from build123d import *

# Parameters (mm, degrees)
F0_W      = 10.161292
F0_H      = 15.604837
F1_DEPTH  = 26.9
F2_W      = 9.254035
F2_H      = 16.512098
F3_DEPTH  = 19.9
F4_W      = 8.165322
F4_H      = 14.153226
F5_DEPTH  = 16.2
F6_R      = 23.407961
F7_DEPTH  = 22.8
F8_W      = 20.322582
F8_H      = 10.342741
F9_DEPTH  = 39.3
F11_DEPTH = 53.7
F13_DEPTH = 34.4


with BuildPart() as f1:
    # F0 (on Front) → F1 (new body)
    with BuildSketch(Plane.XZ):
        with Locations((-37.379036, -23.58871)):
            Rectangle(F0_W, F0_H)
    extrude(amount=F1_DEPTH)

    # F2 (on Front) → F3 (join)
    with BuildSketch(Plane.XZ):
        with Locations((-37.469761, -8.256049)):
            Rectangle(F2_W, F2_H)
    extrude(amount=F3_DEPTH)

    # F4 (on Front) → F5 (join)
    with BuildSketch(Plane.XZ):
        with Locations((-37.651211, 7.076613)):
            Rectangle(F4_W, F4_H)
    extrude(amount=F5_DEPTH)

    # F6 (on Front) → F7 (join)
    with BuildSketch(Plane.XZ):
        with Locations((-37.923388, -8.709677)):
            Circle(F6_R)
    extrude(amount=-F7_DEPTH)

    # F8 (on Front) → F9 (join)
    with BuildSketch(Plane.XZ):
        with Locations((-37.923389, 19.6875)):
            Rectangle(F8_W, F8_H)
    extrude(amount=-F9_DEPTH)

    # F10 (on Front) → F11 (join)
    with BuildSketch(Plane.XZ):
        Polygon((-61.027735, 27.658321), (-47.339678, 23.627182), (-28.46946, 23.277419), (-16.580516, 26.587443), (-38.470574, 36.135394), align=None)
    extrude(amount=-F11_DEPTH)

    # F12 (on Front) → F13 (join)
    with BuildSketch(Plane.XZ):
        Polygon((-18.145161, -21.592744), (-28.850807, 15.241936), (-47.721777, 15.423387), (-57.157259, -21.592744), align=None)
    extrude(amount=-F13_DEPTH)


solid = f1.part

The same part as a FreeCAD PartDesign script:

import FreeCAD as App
import Part
import Sketcher
Q = App.Units.Quantity

doc = App.newDocument("Part")
body = doc.addObject("PartDesign::Body", "Body")

# Sketch on XZ plane
sketch1 = body.newObject("Sketcher::SketchObject", "Sketch")
sketch1.AttachmentSupport = (doc.getObject("XZ_Plane"), [""])
sketch1.MapMode = "FlatFace"
sketch1.addGeometry(Part.LineSegment(App.Vector(-42, -16, 0), App.Vector(-42, -31, 0)), False)
sketch1.addGeometry(Part.LineSegment(App.Vector(-42, -31, 0), App.Vector(-32, -31, 0)), False)
sketch1.addGeometry(Part.LineSegment(App.Vector(-32, -31, 0), App.Vector(-32, -16, 0)), False)
sketch1.addGeometry(Part.LineSegment(App.Vector(-32, -16, 0), App.Vector(-42, -16, 0)), False)
sketch1.addConstraint(Sketcher.Constraint("Coincident", 0, 2, 1, 1))
sketch1.addConstraint(Sketcher.Constraint("Coincident", 1, 2, 2, 1))
sketch1.addConstraint(Sketcher.Constraint("Coincident", 2, 2, 3, 1))
sketch1.addConstraint(Sketcher.Constraint("Coincident", 3, 2, 0, 1))
sketch1.addConstraint(Sketcher.Constraint("Vertical", 0))
sketch1.addConstraint(Sketcher.Constraint("Horizontal", 1))
sketch1.addConstraint(Sketcher.Constraint("Vertical", 2))
sketch1.addConstraint(Sketcher.Constraint("Horizontal", 3))
sketch1.addConstraint(Sketcher.Constraint("DistanceX", 1, 1, 1, 2, Q("10.161292 mm")))
sketch1.addConstraint(Sketcher.Constraint("DistanceY", 0, 2, 0, 1, Q("15.604837 mm")))
sketch1.addConstraint(Sketcher.Constraint("DistanceY", 0, 2, -1, 1, Q("31.391129 mm")))
sketch1.addConstraint(Sketcher.Constraint("DistanceX", 1, 2, -1, 1, Q("32.29839 mm")))
pad1 = body.newObject("PartDesign::Pad", "Pad")
pad1.Profile = sketch1
pad1.Length = 26.9

# Sketch on XZ plane
sketch2 = body.newObject("Sketcher::SketchObject", "Sketch001")
sketch2.AttachmentSupport = (doc.getObject("XZ_Plane"), [""])
sketch2.MapMode = "FlatFace"
sketch2.addGeometry(Part.LineSegment(App.Vector(-42, 0, 0), App.Vector(-42, -17, 0)), False)
sketch2.addGeometry(Part.LineSegment(App.Vector(-42, -17, 0), App.Vector(-33, -17, 0)), False)
sketch2.addGeometry(Part.LineSegment(App.Vector(-33, -17, 0), App.Vector(-33, 0, 0)), False)
sketch2.addGeometry(Part.LineSegment(App.Vector(-33, 0, 0), App.Vector(-42, 0, 0)), False)
sketch2.addConstraint(Sketcher.Constraint("Coincident", 0, 2, 1, 1))
sketch2.addConstraint(Sketcher.Constraint("Coincident", 1, 2, 2, 1))
sketch2.addConstraint(Sketcher.Constraint("Coincident", 2, 2, 3, 1))
sketch2.addConstraint(Sketcher.Constraint("Coincident", 3, 2, 0, 1))
sketch2.addConstraint(Sketcher.Constraint("Vertical", 0))
sketch2.addConstraint(Sketcher.Constraint("Horizontal", 1))
sketch2.addConstraint(Sketcher.Constraint("Vertical", 2))
sketch2.addConstraint(Sketcher.Constraint("Horizontal", 3))
sketch2.addConstraint(Sketcher.Constraint("PointOnObject", 2, 2, -1))
sketch2.addConstraint(Sketcher.Constraint("DistanceY", 0, 2, 0, 1, Q("16.512098 mm")))
sketch2.addConstraint(Sketcher.Constraint("DistanceX", 1, 1, 1, 2, Q("9.254035 mm")))
sketch2.addConstraint(Sketcher.Constraint("DistanceX", 0, 2, -1, 1, Q("42.096778 mm")))
pad2 = body.newObject("PartDesign::Pad", "Pad001")
pad2.Profile = sketch2
pad2.Length = 19.9

# Sketch on XZ plane
sketch3 = body.newObject("Sketcher::SketchObject", "Sketch002")
sketch3.AttachmentSupport = (doc.getObject("XZ_Plane"), [""])
sketch3.MapMode = "FlatFace"
sketch3.addGeometry(Part.LineSegment(App.Vector(-42, 14, 0), App.Vector(-42, 0, 0)), False)
sketch3.addGeometry(Part.LineSegment(App.Vector(-42, 0, 0), App.Vector(-34, 0, 0)), False)
sketch3.addGeometry(Part.LineSegment(App.Vector(-34, 0, 0), App.Vector(-34, 14, 0)), False)
sketch3.addGeometry(Part.LineSegment(App.Vector(-34, 14, 0), App.Vector(-42, 14, 0)), False)
sketch3.addConstraint(Sketcher.Constraint("Coincident", 0, 2, 1, 1))
sketch3.addConstraint(Sketcher.Constraint("Coincident", 1, 2, 2, 1))
sketch3.addConstraint(Sketcher.Constraint("Coincident", 2, 2, 3, 1))
sketch3.addConstraint(Sketcher.Constraint("Coincident", 3, 2, 0, 1))
sketch3.addConstraint(Sketcher.Constraint("Vertical", 0))
sketch3.addConstraint(Sketcher.Constraint("Horizontal", 1))
sketch3.addConstraint(Sketcher.Constraint("Vertical", 2))
sketch3.addConstraint(Sketcher.Constraint("Horizontal", 3))
sketch3.addConstraint(Sketcher.Constraint("PointOnObject", 0, 2, -1))
sketch3.addConstraint(Sketcher.Constraint("DistanceX", 1, 1, 1, 2, Q("8.165322 mm")))
sketch3.addConstraint(Sketcher.Constraint("DistanceY", 0, 2, 0, 1, Q("14.153226 mm")))
sketch3.addConstraint(Sketcher.Constraint("DistanceX", 0, 2, -1, 1, Q("41.733872 mm")))
pad3 = body.newObject("PartDesign::Pad", "Pad002")
pad3.Profile = sketch3
pad3.Length = 16.2

# Sketch on XZ plane
sketch4 = body.newObject("Sketcher::SketchObject", "Sketch003")
sketch4.AttachmentSupport = (doc.getObject("XZ_Plane"), [""])
sketch4.MapMode = "FlatFace"
sketch4.addGeometry(Part.Circle(App.Vector(-38, -9, 0), App.Vector(0, 0, 1), 23), False)
sketch4.addConstraint(Sketcher.Constraint("Diameter", 0, Q("46.815922 mm")))
sketch4.addConstraint(Sketcher.Constraint("DistanceX", 0, 3, -1, 1, Q("37.923388 mm")))
sketch4.addConstraint(Sketcher.Constraint("DistanceY", 0, 3, -1, 1, Q("8.709677 mm")))
pad4 = body.newObject("PartDesign::Pad", "Pad003")
pad4.Profile = sketch4
pad4.Length = 22.8
pad4.Reversed = True

# Sketch on XZ plane
sketch5 = body.newObject("Sketcher::SketchObject", "Sketch004")
sketch5.AttachmentSupport = (doc.getObject("XZ_Plane"), [""])
sketch5.MapMode = "FlatFace"
sketch5.addGeometry(Part.LineSegment(App.Vector(-48, 25, 0), App.Vector(-48, 15, 0)), False)
sketch5.addGeometry(Part.LineSegment(App.Vector(-48, 15, 0), App.Vector(-28, 15, 0)), False)
sketch5.addGeometry(Part.LineSegment(App.Vector(-28, 15, 0), App.Vector(-28, 25, 0)), False)
sketch5.addGeometry(Part.LineSegment(App.Vector(-28, 25, 0), App.Vector(-48, 25, 0)), False)
sketch5.addConstraint(Sketcher.Constraint("Coincident", 0, 2, 1, 1))
sketch5.addConstraint(Sketcher.Constraint("Coincident", 1, 2, 2, 1))
sketch5.addConstraint(Sketcher.Constraint("Coincident", 2, 2, 3, 1))
sketch5.addConstraint(Sketcher.Constraint("Coincident", 3, 2, 0, 1))
sketch5.addConstraint(Sketcher.Constraint("Vertical", 0))
sketch5.addConstraint(Sketcher.Constraint("Horizontal", 1))
sketch5.addConstraint(Sketcher.Constraint("Vertical", 2))
sketch5.addConstraint(Sketcher.Constraint("Horizontal", 3))
sketch5.addConstraint(Sketcher.Constraint("DistanceX", 1, 1, 1, 2, Q("20.322582 mm")))
sketch5.addConstraint(Sketcher.Constraint("DistanceY", 0, 2, 0, 1, Q("10.342741 mm")))
sketch5.addConstraint(Sketcher.Constraint("DistanceX", 1, 2, -1, 1, Q("27.762098 mm")))
sketch5.addConstraint(Sketcher.Constraint("DistanceY", -1, 1, 0, 2, Q("14.516129 mm")))
pad5 = body.newObject("PartDesign::Pad", "Pad004")
pad5.Profile = sketch5
pad5.Length = 39.3
pad5.Reversed = True

# Sketch on XZ plane
sketch6 = body.newObject("Sketcher::SketchObject", "Sketch005")
sketch6.AttachmentSupport = (doc.getObject("XZ_Plane"), [""])
sketch6.MapMode = "FlatFace"
sketch6.addGeometry(Part.LineSegment(App.Vector(-61, 28, 0), App.Vector(-47, 24, 0)), False)
sketch6.addGeometry(Part.LineSegment(App.Vector(-47, 24, 0), App.Vector(-28, 23, 0)), False)
sketch6.addGeometry(Part.LineSegment(App.Vector(-28, 23, 0), App.Vector(-17, 27, 0)), False)
sketch6.addGeometry(Part.LineSegment(App.Vector(-17, 27, 0), App.Vector(-38, 36, 0)), False)
sketch6.addGeometry(Part.LineSegment(App.Vector(-38, 36, 0), App.Vector(-61, 28, 0)), False)
sketch6.addConstraint(Sketcher.Constraint("Coincident", 0, 2, 1, 1))
sketch6.addConstraint(Sketcher.Constraint("Coincident", 1, 2, 2, 1))
sketch6.addConstraint(Sketcher.Constraint("Coincident", 2, 2, 3, 1))
sketch6.addConstraint(Sketcher.Constraint("Coincident", 3, 2, 4, 1))
sketch6.addConstraint(Sketcher.Constraint("Coincident", 4, 2, 0, 1))
sketch6.addConstraint(Sketcher.Constraint("Distance", 1, Q("18.873459 mm")))
sketch6.addConstraint(Sketcher.Constraint("Distance", 2, Q("12.34112 mm")))
sketch6.addConstraint(Sketcher.Constraint("Distance", 3, Q("23.881751 mm")))
sketch6.addConstraint(Sketcher.Constraint("DistanceX", 1, 2, -1, 1, Q("28.46946 mm")))
sketch6.addConstraint(Sketcher.Constraint("DistanceY", -1, 1, 1, 2, Q("23.277419 mm")))
sketch6.addConstraint(Sketcher.Constraint("DistanceY", -1, 1, 4, 2, Q("27.658321 mm")))
sketch6.addConstraint(Sketcher.Constraint("DistanceX", 0, 2, 2, 2, Q("30.759162 mm")))
sketch6.addConstraint(Sketcher.Constraint("DistanceY", 0, 2, 2, 2, Q("2.960261 mm")))
sketch6.addConstraint(Sketcher.Constraint("DistanceY", 0, 2, 3, 2, Q("12.508212 mm")))
sketch6.addConstraint(Sketcher.Constraint("DistanceX", 4, 2, 3, 2, Q("22.557161 mm")))
pad6 = body.newObject("PartDesign::Pad", "Pad005")
pad6.Profile = sketch6
pad6.Length = 53.7
pad6.Reversed = True

# Sketch on XZ plane
sketch7 = body.newObject("Sketcher::SketchObject", "Sketch006")
sketch7.AttachmentSupport = (doc.getObject("XZ_Plane"), [""])
sketch7.MapMode = "FlatFace"
sketch7.addGeometry(Part.LineSegment(App.Vector(-18, -22, 0), App.Vector(-29, 15, 0)), False)
sketch7.addGeometry(Part.LineSegment(App.Vector(-29, 15, 0), App.Vector(-48, 15, 0)), False)
sketch7.addGeometry(Part.LineSegment(App.Vector(-48, 15, 0), App.Vector(-57, -22, 0)), False)
sketch7.addGeometry(Part.LineSegment(App.Vector(-57, -22, 0), App.Vector(-18, -22, 0)), False)
sketch7.addConstraint(Sketcher.Constraint("Coincident", 0, 2, 1, 1))
sketch7.addConstraint(Sketcher.Constraint("Coincident", 1, 2, 2, 1))
sketch7.addConstraint(Sketcher.Constraint("Coincident", 2, 2, 3, 1))
sketch7.addConstraint(Sketcher.Constraint("Coincident", 3, 2, 0, 1))
sketch7.addConstraint(Sketcher.Constraint("Horizontal", 3))
sketch7.addConstraint(Sketcher.Constraint("DistanceX", 3, 1, 3, 2, Q("39.012098 mm")))
sketch7.addConstraint(Sketcher.Constraint("Distance", 0, Q("38.358891 mm")))
sketch7.addConstraint(Sketcher.Constraint("DistanceX", 2, 2, -1, 1, Q("57.157259 mm")))
sketch7.addConstraint(Sketcher.Constraint("DistanceX", 1, 2, 0, 2, Q("18.87097 mm")))
sketch7.addConstraint(Sketcher.Constraint("DistanceY", 0, 2, 1, 2, Q("0.181451 mm")))
sketch7.addConstraint(Sketcher.Constraint("DistanceY", 2, 2, 1, 2, Q("37.016131 mm")))
sketch7.addConstraint(Sketcher.Constraint("DistanceY", -1, 1, 0, 2, Q("15.241936 mm")))
pad7 = body.newObject("PartDesign::Pad", "Pad006")
pad7.Profile = sketch7
pad7.Length = 34.4
pad7.Reversed = True

doc.recompute()
